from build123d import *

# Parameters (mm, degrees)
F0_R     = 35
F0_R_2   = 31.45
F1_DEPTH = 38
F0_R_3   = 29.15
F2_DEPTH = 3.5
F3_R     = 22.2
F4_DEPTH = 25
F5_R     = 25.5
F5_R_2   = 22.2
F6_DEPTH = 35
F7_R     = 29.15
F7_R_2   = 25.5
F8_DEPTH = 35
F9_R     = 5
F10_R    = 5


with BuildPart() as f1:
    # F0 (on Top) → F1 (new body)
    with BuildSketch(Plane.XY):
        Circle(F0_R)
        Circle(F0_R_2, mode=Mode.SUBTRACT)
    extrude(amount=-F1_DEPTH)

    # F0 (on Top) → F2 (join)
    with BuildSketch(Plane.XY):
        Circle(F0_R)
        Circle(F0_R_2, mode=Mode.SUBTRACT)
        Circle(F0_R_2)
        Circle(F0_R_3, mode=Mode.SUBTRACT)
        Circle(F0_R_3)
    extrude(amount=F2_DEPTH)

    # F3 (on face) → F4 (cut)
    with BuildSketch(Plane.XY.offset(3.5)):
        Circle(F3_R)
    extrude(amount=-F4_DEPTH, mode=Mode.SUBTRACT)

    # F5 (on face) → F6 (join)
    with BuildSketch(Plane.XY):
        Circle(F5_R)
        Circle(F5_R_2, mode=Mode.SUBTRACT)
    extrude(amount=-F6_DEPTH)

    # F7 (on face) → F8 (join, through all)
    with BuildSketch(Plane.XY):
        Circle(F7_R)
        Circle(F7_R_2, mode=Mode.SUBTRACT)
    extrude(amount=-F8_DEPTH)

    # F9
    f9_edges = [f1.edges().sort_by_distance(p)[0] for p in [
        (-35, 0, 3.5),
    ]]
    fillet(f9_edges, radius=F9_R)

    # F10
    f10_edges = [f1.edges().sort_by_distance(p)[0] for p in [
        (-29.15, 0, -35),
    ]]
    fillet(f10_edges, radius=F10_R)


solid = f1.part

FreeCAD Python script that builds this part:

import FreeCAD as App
import Part
import Sketcher
from FreeCAD import Vector
Q = App.Units.Quantity


def edges_at(feature, points):
    """Names of the edges that pass closest to the given points."""
    edges = feature.Shape.Edges
    near = lambda p: min(range(len(edges)), key=lambda i: edges[i].distToShape(Part.Vertex(*p))[0])
    return sorted({f"Edge{near(p) + 1}" for p in points})

doc = App.newDocument("Part")
params = doc.addObject("Spreadsheet::Sheet", "Params")
for row, (alias, value) in enumerate([
    ("sketch1_diameter", "70 mm"),
    ("sketch1_diameter2", "62.9 mm"),
    ("pad1_length", "38 mm"),
    ("sketch2_diameter", "70 mm"),
    ("pad2_length", "3.5 mm"),
    ("sketch3_diameter", "44.4 mm"),
    ("pocket1_length", "25 mm"),
    ("sketch4_diameter", "51 mm"),
    ("sketch4_diameter2", "44.4 mm"),
    ("pad3_length", "35 mm"),
    ("sketch5_diameter", "51 mm"),
    ("sketch5_diameter2", "58.3 mm"),
    ("pad4_length", "35 mm"),
    ("fillet_radius", "5 mm"),
    ("fillet2_radius", "5 mm"),
], start=1):
    params.set(f"A{row}", alias)
    params.set(f"B{row}", "=" + value)
    params.setAlias(f"B{row}", alias)

body = doc.addObject("PartDesign::Body", "Body")

sketch1 = body.newObject("Sketcher::SketchObject", "Sketch")
sketch1.AttachmentSupport = (doc.getObject("XY_Plane"), [""])
sketch1.MapMode = "FlatFace"
sketch1.addGeometry(Part.Circle(Vector(0, 0, 0), Vector(0, 0, 1), 35), False)
sketch1.addGeometry(Part.Circle(Vector(0, 0, 0), Vector(0, 0, 1), 31), False)
sketch1.addConstraint(Sketcher.Constraint("Coincident", 0, 3, -1, 1))
sketch1.addConstraint(Sketcher.Constraint("Coincident", 1, 3, -1, 1))
sketch1.addConstraint(Sketcher.Constraint("Diameter", 0, Q("70 mm")))
sketch1.addConstraint(Sketcher.Constraint("Diameter", 1, Q("62.9 mm")))
sketch1.setExpression("Constraints[2]", "Params.sketch1_diameter")
sketch1.setExpression("Constraints[3]", "Params.sketch1_diameter2")
pad1 = body.newObject("PartDesign::Pad", "Pad")
pad1.Profile = sketch1
pad1.setExpression("Length", "Params.pad1_length")
pad1.Reversed = True

sketch2 = body.newObject("Sketcher::SketchObject", "Sketch001")
sketch2.AttachmentSupport = (doc.getObject("XY_Plane"), [""])
sketch2.MapMode = "FlatFace"
sketch2.addGeometry(Part.Circle(Vector(0, 0, 0), Vector(0, 0, 1), 35), False)
sketch2.addConstraint(Sketcher.Constraint("Coincident", 0, 3, -1, 1))
sketch2.addConstraint(Sketcher.Constraint("Diameter", 0, Q("70 mm")))
sketch2.setExpression("Constraints[1]", "Params.sketch2_diameter")
pad2 = body.newObject("PartDesign::Pad", "Pad001")
pad2.Profile = sketch2
pad2.setExpression("Length", "Params.pad2_length")

sketch3 = body.newObject("Sketcher::SketchObject", "Sketch002")
sketch3.AttachmentSupport = (doc.getObject("XY_Plane"), [""])
sketch3.MapMode = "FlatFace"
sketch3.AttachmentOffset = App.Placement(Vector(0, 0, 3.5), App.Rotation())
sketch3.addGeometry(Part.Circle(Vector(0, 0, 0), Vector(0, 0, 1), 22), False)
sketch3.addConstraint(Sketcher.Constraint("Coincident", 0, 3, -1, 1))
sketch3.addConstraint(Sketcher.Constraint("Diameter", 0, Q("44.4 mm")))
sketch3.setExpression("Constraints[1]", "Params.sketch3_diameter")
pocket1 = body.newObject("PartDesign::Pocket", "Pocket")
pocket1.Profile = sketch3
pocket1.setExpression("Length", "Params.pocket1_length")

sketch4 = body.newObject("Sketcher::SketchObject", "Sketch003")
sketch4.AttachmentSupport = (doc.getObject("XY_Plane"), [""])
sketch4.MapMode = "FlatFace"
sketch4.addGeometry(Part.Circle(Vector(0, 0, 0), Vector(0, 0, 1), 26), False)
sketch4.addGeometry(Part.Circle(Vector(0, 0, 0), Vector(0, 0, 1), 22), False)
sketch4.addConstraint(Sketcher.Constraint("Coincident", 0, 3, -1, 1))
sketch4.addConstraint(Sketcher.Constraint("Coincident", 1, 3, -1, 1))
sketch4.addConstraint(Sketcher.Constraint("Diameter", 0, Q("51 mm")))
sketch4.addConstraint(Sketcher.Constraint("Diameter", 1, Q("44.4 mm")))
sketch4.setExpression("Constraints[2]", "Params.sketch4_diameter")
sketch4.setExpression("Constraints[3]", "Params.sketch4_diameter2")
pad3 = body.newObject("PartDesign::Pad", "Pad002")
pad3.Profile = sketch4
pad3.setExpression("Length", "Params.pad3_length")
pad3.Reversed = True

sketch5 = body.newObject("Sketcher::SketchObject", "Sketch004")
sketch5.AttachmentSupport = (doc.getObject("XY_Plane"), [""])
sketch5.MapMode = "FlatFace"
sketch5.addGeometry(Part.Circle(Vector(0, 0, 0), Vector(0, 0, 1), 29), False)
sketch5.addGeometry(Part.Circle(Vector(0, 0, 0), Vector(0, 0, 1), 26), False)
sketch5.addConstraint(Sketcher.Constraint("Coincident", 0, 3, -1, 1))
sketch5.addConstraint(Sketcher.Constraint("Coincident", 1, 3, -1, 1))
sketch5.addConstraint(Sketcher.Constraint("Diameter", 1, Q("51 mm")))
sketch5.addConstraint(Sketcher.Constraint("Diameter", 0, Q("58.3 mm")))
sketch5.setExpression("Constraints[2]", "Params.sketch5_diameter")
sketch5.setExpression("Constraints[3]", "Params.sketch5_diameter2")
pad4 = body.newObject("PartDesign::Pad", "Pad003")
pad4.Profile = sketch5
pad4.setExpression("Length", "Params.pad4_length")
pad4.Reversed = True
doc.recompute()

fillet = body.newObject("PartDesign::Fillet", "Fillet")
fillet.Base = (pad4, edges_at(pad4, [(-35, 0, 3.5)]))
fillet.setExpression("Radius", "Params.fillet_radius")
doc.recompute()

fillet2 = body.newObject("PartDesign::Fillet", "Fillet001")
fillet2.Base = (fillet, edges_at(fillet, [(-29.15, 0, -35)]))
fillet2.setExpression("Radius", "Params.fillet2_radius")

doc.recompute()
